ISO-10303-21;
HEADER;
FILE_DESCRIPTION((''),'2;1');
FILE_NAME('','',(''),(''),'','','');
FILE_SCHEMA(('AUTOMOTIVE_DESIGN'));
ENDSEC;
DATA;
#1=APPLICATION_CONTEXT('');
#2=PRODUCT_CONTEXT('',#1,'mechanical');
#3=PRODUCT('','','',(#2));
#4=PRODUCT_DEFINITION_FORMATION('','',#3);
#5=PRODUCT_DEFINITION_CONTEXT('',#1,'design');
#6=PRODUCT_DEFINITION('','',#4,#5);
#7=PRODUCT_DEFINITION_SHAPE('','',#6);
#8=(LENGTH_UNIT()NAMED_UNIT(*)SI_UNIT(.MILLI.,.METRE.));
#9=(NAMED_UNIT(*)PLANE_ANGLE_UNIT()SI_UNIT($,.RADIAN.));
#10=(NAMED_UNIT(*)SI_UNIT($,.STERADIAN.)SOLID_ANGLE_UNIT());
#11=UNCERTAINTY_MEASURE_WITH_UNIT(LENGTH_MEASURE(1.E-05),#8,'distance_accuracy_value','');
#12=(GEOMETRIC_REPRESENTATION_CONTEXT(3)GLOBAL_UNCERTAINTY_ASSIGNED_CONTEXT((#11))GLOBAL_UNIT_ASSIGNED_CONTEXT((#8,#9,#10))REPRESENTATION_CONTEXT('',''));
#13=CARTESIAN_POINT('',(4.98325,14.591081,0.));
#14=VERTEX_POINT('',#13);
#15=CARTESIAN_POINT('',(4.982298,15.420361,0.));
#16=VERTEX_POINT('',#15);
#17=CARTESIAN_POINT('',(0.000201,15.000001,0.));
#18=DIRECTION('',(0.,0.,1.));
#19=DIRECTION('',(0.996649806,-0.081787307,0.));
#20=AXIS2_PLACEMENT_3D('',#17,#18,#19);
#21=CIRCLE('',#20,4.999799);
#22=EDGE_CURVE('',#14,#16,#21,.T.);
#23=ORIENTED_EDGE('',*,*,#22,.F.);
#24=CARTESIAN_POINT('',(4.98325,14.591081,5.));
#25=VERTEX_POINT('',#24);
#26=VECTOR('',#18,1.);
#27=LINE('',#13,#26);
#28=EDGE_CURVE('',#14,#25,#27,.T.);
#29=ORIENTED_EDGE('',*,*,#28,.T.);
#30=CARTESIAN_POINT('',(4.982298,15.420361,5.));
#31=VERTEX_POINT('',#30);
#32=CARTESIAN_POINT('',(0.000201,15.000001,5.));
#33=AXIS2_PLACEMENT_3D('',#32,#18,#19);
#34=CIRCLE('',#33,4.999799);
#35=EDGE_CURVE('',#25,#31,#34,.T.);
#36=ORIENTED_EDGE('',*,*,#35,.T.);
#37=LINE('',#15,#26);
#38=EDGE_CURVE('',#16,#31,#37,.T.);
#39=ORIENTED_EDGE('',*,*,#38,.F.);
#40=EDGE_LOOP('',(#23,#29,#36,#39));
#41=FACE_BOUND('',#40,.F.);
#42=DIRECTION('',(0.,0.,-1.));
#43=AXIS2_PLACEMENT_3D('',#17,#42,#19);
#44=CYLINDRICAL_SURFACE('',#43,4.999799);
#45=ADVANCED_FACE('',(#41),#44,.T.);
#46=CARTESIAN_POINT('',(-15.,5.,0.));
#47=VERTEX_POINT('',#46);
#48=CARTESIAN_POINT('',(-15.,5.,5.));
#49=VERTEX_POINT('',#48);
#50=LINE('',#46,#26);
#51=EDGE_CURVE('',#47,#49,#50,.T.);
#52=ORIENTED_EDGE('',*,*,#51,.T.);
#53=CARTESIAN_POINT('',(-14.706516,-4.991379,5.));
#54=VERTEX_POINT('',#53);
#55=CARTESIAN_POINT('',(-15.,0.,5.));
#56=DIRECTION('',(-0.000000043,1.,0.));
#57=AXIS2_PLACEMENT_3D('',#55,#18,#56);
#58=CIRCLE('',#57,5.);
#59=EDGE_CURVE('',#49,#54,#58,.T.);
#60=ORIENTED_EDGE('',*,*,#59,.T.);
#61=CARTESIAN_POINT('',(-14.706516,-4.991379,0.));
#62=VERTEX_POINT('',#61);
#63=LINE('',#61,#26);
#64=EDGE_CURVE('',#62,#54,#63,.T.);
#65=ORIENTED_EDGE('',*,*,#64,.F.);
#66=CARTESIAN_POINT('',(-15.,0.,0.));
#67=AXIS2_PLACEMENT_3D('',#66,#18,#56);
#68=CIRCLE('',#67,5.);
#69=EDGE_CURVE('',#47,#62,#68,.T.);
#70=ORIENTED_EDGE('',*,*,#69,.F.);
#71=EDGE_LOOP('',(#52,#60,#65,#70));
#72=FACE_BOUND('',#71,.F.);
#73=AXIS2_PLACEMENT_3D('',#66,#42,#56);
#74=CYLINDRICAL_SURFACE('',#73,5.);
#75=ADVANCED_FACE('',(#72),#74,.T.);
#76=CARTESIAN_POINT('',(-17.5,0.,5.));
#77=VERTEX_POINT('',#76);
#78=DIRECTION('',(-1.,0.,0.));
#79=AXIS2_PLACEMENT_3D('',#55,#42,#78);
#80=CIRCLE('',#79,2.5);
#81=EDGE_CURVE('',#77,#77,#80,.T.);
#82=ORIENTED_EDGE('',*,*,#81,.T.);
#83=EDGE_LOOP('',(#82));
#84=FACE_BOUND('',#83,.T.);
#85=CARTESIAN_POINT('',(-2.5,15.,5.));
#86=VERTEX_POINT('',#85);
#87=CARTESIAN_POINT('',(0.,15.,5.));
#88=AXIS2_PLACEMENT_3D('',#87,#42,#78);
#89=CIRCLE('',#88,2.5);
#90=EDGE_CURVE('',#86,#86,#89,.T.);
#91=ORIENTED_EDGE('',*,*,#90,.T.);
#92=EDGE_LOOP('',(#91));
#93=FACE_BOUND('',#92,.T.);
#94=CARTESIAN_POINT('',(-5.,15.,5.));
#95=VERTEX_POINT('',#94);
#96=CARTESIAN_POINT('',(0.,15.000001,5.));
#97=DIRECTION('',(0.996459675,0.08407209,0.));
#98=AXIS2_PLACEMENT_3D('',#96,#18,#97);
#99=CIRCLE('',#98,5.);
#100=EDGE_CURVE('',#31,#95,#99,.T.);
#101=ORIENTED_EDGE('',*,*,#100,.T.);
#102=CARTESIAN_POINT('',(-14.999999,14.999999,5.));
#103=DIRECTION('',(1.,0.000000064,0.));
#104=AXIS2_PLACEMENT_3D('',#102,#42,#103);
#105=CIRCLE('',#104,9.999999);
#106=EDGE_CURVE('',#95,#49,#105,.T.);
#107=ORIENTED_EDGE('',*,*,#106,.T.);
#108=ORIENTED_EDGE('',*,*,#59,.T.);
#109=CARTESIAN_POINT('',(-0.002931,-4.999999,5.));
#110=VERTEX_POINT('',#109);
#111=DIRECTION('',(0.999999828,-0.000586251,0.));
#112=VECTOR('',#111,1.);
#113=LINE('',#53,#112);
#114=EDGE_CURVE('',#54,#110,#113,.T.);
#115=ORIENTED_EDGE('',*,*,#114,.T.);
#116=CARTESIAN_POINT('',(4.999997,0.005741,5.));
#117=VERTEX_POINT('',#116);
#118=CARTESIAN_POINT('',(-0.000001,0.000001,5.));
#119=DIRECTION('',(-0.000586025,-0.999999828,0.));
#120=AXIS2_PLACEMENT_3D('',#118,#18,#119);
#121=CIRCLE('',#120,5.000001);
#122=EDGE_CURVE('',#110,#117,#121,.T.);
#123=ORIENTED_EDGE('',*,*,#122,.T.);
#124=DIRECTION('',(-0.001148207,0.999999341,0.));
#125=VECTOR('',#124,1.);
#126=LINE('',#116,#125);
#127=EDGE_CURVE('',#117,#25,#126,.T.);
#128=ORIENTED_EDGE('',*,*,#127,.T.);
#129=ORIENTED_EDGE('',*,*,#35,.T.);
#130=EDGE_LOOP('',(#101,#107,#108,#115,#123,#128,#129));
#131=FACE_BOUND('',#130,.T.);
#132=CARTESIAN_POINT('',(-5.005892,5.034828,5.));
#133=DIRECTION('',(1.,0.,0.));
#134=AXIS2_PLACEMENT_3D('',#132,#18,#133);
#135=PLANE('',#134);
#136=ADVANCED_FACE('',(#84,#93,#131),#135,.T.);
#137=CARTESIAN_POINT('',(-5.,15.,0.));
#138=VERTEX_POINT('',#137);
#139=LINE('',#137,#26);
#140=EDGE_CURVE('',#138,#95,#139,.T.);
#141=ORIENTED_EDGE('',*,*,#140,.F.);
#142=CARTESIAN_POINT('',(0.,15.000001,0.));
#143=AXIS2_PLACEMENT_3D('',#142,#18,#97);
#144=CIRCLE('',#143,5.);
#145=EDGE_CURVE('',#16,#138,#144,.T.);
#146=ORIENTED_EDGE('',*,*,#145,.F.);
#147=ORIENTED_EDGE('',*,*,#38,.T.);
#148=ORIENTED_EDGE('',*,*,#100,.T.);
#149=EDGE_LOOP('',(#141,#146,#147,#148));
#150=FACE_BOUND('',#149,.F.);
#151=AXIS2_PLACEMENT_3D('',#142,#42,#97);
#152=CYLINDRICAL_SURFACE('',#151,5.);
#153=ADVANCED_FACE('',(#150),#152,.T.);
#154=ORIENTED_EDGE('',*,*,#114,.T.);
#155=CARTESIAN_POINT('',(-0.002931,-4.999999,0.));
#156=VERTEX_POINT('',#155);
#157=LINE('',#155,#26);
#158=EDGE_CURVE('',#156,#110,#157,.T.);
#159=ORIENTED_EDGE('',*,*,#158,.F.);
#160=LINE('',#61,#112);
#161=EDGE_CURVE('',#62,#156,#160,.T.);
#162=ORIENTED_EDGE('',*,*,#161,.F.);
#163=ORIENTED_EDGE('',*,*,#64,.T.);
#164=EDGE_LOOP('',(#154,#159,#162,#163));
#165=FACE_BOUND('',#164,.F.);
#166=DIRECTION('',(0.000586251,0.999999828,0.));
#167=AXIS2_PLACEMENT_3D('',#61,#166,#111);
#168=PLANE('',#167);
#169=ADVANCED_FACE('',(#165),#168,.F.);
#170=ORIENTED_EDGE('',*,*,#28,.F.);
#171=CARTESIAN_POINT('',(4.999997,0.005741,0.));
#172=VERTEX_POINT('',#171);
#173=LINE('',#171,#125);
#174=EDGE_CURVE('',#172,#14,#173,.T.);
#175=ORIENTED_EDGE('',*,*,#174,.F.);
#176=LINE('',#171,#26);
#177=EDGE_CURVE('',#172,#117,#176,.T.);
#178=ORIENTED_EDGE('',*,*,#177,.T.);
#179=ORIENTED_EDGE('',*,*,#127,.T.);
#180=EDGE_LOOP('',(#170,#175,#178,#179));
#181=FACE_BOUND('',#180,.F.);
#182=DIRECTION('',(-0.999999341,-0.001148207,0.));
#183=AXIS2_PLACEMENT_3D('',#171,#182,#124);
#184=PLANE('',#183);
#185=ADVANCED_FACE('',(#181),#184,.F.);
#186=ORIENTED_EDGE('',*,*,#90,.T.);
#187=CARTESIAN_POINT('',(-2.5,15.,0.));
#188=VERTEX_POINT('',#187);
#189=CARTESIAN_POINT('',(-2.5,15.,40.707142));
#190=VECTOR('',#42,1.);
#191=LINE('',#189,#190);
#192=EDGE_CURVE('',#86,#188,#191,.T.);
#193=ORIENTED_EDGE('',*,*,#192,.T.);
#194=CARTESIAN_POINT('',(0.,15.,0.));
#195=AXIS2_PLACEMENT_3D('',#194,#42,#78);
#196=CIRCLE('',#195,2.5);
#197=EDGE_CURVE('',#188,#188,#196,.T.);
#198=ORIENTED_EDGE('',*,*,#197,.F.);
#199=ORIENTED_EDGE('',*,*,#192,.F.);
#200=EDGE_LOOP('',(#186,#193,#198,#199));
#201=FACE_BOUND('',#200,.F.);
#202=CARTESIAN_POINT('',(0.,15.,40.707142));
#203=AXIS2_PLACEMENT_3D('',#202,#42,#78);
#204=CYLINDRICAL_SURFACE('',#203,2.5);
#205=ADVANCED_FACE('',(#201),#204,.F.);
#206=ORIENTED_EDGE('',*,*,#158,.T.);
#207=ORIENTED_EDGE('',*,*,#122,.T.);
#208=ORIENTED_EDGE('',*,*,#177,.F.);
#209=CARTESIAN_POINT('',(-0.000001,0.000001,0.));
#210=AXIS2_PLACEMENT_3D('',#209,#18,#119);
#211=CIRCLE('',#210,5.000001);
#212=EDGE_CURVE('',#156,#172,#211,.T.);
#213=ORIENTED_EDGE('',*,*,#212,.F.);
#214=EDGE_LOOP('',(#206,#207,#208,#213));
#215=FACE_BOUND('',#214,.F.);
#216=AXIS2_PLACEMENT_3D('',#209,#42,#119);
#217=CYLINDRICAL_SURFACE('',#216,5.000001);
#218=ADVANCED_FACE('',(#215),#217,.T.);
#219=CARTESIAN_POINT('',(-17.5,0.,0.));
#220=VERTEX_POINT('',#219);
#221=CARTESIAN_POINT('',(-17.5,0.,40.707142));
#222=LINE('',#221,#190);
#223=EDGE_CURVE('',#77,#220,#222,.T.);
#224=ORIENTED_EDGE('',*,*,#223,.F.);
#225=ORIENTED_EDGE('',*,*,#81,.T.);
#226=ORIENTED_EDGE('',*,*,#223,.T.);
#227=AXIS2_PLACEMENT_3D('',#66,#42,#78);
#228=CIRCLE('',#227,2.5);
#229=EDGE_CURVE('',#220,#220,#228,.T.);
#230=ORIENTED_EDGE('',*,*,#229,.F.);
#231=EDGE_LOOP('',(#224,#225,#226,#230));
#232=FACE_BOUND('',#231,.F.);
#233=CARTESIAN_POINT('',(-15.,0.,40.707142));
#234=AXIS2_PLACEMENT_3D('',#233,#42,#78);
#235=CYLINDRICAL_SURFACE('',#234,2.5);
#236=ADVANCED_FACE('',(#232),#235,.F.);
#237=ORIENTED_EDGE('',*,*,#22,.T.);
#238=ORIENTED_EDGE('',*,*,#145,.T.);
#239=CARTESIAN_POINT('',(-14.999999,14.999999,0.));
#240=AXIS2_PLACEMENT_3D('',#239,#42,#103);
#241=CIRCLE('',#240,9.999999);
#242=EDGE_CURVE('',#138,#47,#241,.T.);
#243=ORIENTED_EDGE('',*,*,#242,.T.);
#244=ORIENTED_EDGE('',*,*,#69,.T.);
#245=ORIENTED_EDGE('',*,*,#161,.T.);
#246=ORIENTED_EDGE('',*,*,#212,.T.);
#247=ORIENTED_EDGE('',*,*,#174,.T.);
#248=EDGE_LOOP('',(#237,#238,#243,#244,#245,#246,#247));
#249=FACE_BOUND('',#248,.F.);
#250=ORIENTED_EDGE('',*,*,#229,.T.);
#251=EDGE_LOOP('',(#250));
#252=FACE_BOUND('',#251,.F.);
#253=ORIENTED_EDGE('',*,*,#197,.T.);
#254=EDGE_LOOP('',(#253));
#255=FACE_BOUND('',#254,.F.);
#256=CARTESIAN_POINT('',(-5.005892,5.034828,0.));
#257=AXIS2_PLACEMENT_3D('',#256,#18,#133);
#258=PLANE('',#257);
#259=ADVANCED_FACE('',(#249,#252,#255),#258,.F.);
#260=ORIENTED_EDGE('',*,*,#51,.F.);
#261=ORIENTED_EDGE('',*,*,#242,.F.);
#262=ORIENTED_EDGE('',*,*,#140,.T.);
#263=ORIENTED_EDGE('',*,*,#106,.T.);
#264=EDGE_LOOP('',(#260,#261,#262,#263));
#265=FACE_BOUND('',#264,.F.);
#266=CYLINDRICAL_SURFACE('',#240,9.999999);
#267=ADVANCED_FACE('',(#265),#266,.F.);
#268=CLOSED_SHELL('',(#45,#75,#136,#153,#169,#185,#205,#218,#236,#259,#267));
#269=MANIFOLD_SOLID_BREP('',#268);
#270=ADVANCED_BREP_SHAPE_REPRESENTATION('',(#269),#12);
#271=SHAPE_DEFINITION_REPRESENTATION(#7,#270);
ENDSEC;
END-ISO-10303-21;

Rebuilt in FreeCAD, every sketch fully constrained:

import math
import FreeCAD as App
import Part
import Sketcher

V = App.Vector

doc = App.newDocument("Part")
body = doc.addObject("PartDesign::Body", "Body")

# Sketch on XY plane
sketch1 = body.newObject("Sketcher::SketchObject", "Sketch")
sketch1.AttachmentSupport = (doc.getObject("XY_Plane"), [""])
sketch1.MapMode = "FlatFace"
sketch1.addGeometry([
    Part.LineSegment(V(-14.7, -5, 0), V(0, -5, 0)),  # 0
    Part.ArcOfCircle(Part.Circle(V(0, 0, 0), V(0, 0, 1), 5), math.radians(-90), math.radians(0)),  # 1
    Part.LineSegment(V(5, 0, 0), V(5, 14.6, 0)),  # 2
    Part.ArcOfCircle(Part.Circle(V(0, 15, 0), V(0, 0, 1), 5), math.radians(-4.69), math.radians(4.82)),  # 3
    Part.ArcOfCircle(Part.Circle(V(0, 15, 0), V(0, 0, 1), 5), math.radians(5), math.radians(180)),  # 4
    Part.ArcOfCircle(Part.Circle(V(-15, 15, 0), V(0, 0, 1), 10), math.radians(-90), math.radians(0)),  # 5
    Part.ArcOfCircle(Part.Circle(V(-15, 0, 0), V(0, 0, 1), 5), math.radians(90), math.radians(273)),  # 6
], False)
sketch1.addConstraint([
    Sketcher.Constraint("Tangent", 0, 2, 1, 1),
    Sketcher.Constraint("Tangent", 1, 2, 2, 1),
    Sketcher.Constraint("Coincident", 2, 2, 3, 1),
    Sketcher.Constraint("Coincident", 3, 2, 4, 1),
    Sketcher.Constraint("Tangent", 4, 2, 5, 2),
    Sketcher.Constraint("Tangent", 5, 1, 6, 1),
    Sketcher.Constraint("Coincident", 6, 2, 0, 1),
    Sketcher.Constraint("Coincident", 1, 3, -1, 1),
    Sketcher.Constraint("Equal", 1, 4),
    Sketcher.Constraint("Equal", 4, 6),
    Sketcher.Constraint("PointOnObject", 4, 3, -2),
    Sketcher.Constraint("PointOnObject", 6, 3, -1),
    Sketcher.Constraint("Horizontal", 3, 3, 4, 3),
    Sketcher.Constraint("Horizontal", 4, 3, 5, 3),
    Sketcher.Constraint("Vertical", 5, 3, 6, 3),
    Sketcher.Constraint("Radius", 1, 5.000001),
    Sketcher.Constraint("Radius", 5, 9.999999),
    Sketcher.Constraint("Radius", 3, 4.999799),
    Sketcher.Constraint("DistanceX", 4, 3, 3, 2, 4.982298),
    Sketcher.Constraint("Distance", 2, 14.58535),
    Sketcher.Constraint("DistanceX", 0, 2, -1, 1, 0.002931),
])
pad1 = body.newObject("PartDesign::Pad", "Pad")
pad1.Profile = sketch1
pad1.Length = 5

# Sketch on XY plane
sketch2 = body.newObject("Sketcher::SketchObject", "Sketch001")
sketch2.AttachmentSupport = (doc.getObject("XY_Plane"), [""])
sketch2.MapMode = "FlatFace"
sketch2.AttachmentOffset = App.Placement(V(0, 0, 5), App.Rotation())
sketch2.addGeometry([
    Part.Circle(V(0, 15, 0), V(0, 0, 1), 2.5),
    Part.Circle(V(-15, 0, 0), V(0, 0, 1), 2.5),
], False)
sketch2.addConstraint([
    Sketcher.Constraint("Equal", 0, 1),
    Sketcher.Constraint("PointOnObject", 0, 3, -2),
    Sketcher.Constraint("PointOnObject", 1, 3, -1),
    Sketcher.Constraint("Diameter", 0, 5.0),
    Sketcher.Constraint("DistanceY", -1, 1, 0, 3, 15.0),
    Sketcher.Constraint("DistanceX", 1, 3, -1, 1, 15.0),
])
doc.recompute()
hole = body.newObject("PartDesign::Hole", "Hole")
hole.Profile = sketch2
hole.ThreadType = "None"
hole.Diameter = 5
hole.DepthType = "ThroughAll"

doc.recompute()
